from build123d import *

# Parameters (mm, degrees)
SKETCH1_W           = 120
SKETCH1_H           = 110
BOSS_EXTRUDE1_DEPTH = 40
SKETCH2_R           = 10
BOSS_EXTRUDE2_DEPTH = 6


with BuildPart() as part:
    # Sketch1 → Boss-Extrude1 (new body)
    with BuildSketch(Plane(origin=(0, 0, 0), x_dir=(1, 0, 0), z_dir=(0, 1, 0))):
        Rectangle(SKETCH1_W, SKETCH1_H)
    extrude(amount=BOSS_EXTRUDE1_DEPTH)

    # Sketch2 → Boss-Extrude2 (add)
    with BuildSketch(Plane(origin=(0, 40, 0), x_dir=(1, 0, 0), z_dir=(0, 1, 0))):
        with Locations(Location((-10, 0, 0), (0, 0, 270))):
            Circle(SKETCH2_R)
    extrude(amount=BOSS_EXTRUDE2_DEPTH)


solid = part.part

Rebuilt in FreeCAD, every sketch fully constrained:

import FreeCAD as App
import Part
import Sketcher
from FreeCAD import Vector
Q = App.Units.Quantity


def add_polygon(sketch, points):
    """Adds a closed chain of lines whose ends are joined by coincident constraints."""
    first, n = sketch.GeometryCount, len(points)
    for a, b in zip(points, points[1:] + points[:1]):
        sketch.addGeometry(Part.LineSegment(App.Vector(*a, 0), App.Vector(*b, 0)), False)
    for i in range(n):
        sketch.addConstraint(Sketcher.Constraint("Coincident", first + i, 2, first + (i + 1) % n, 1))

doc = App.newDocument("Part")
body = doc.addObject("PartDesign::Body", "Body")

# Sketch on XZ plane
sketch1 = body.newObject("Sketcher::SketchObject", "Sketch")
sketch1.AttachmentSupport = (doc.getObject("XZ_Plane"), [""])
sketch1.MapMode = "FlatFace"
add_polygon(sketch1, [(-60, -55), (-60, 55), (60, 55), (60, -55)])  # lines 0-3
sketch1.addConstraint([
    Sketcher.Constraint("Vertical", 0),
    Sketcher.Constraint("Horizontal", 1),
    Sketcher.Constraint("Vertical", 2),
    Sketcher.Constraint("Horizontal", 3),
    Sketcher.Constraint("Symmetric", 0, 2, 2, 2, -1, 1),
    Sketcher.Constraint("DistanceX", 1, 1, 1, 2, Q("120 mm")),
    Sketcher.Constraint("DistanceY", 0, 1, 0, 2, Q("110 mm")),
])
pad1 = body.newObject("PartDesign::Pad", "Pad")
pad1.Profile = sketch1
pad1.Length = 40
pad1.Reversed = True

# Sketch on XZ plane
sketch2 = body.newObject("Sketcher::SketchObject", "Sketch001")
sketch2.AttachmentSupport = (doc.getObject("XZ_Plane"), [""])
sketch2.MapMode = "FlatFace"
sketch2.AttachmentOffset = App.Placement(Vector(0, 0, -40), App.Rotation())
sketch2.addGeometry(Part.Circle(Vector(-10, 0, 0), Vector(0, 0, 1), 10), False)
sketch2.addConstraint([
    Sketcher.Constraint("PointOnObject", 0, 3, -1),
    Sketcher.Constraint("Diameter", 0, Q("20 mm")),
    Sketcher.Constraint("DistanceX", 0, 3, -1, 1, Q("10 mm")),
])
pad2 = body.newObject("PartDesign::Pad", "Pad001")
pad2.Profile = sketch2
pad2.Length = 6
pad2.Reversed = True

doc.recompute()
